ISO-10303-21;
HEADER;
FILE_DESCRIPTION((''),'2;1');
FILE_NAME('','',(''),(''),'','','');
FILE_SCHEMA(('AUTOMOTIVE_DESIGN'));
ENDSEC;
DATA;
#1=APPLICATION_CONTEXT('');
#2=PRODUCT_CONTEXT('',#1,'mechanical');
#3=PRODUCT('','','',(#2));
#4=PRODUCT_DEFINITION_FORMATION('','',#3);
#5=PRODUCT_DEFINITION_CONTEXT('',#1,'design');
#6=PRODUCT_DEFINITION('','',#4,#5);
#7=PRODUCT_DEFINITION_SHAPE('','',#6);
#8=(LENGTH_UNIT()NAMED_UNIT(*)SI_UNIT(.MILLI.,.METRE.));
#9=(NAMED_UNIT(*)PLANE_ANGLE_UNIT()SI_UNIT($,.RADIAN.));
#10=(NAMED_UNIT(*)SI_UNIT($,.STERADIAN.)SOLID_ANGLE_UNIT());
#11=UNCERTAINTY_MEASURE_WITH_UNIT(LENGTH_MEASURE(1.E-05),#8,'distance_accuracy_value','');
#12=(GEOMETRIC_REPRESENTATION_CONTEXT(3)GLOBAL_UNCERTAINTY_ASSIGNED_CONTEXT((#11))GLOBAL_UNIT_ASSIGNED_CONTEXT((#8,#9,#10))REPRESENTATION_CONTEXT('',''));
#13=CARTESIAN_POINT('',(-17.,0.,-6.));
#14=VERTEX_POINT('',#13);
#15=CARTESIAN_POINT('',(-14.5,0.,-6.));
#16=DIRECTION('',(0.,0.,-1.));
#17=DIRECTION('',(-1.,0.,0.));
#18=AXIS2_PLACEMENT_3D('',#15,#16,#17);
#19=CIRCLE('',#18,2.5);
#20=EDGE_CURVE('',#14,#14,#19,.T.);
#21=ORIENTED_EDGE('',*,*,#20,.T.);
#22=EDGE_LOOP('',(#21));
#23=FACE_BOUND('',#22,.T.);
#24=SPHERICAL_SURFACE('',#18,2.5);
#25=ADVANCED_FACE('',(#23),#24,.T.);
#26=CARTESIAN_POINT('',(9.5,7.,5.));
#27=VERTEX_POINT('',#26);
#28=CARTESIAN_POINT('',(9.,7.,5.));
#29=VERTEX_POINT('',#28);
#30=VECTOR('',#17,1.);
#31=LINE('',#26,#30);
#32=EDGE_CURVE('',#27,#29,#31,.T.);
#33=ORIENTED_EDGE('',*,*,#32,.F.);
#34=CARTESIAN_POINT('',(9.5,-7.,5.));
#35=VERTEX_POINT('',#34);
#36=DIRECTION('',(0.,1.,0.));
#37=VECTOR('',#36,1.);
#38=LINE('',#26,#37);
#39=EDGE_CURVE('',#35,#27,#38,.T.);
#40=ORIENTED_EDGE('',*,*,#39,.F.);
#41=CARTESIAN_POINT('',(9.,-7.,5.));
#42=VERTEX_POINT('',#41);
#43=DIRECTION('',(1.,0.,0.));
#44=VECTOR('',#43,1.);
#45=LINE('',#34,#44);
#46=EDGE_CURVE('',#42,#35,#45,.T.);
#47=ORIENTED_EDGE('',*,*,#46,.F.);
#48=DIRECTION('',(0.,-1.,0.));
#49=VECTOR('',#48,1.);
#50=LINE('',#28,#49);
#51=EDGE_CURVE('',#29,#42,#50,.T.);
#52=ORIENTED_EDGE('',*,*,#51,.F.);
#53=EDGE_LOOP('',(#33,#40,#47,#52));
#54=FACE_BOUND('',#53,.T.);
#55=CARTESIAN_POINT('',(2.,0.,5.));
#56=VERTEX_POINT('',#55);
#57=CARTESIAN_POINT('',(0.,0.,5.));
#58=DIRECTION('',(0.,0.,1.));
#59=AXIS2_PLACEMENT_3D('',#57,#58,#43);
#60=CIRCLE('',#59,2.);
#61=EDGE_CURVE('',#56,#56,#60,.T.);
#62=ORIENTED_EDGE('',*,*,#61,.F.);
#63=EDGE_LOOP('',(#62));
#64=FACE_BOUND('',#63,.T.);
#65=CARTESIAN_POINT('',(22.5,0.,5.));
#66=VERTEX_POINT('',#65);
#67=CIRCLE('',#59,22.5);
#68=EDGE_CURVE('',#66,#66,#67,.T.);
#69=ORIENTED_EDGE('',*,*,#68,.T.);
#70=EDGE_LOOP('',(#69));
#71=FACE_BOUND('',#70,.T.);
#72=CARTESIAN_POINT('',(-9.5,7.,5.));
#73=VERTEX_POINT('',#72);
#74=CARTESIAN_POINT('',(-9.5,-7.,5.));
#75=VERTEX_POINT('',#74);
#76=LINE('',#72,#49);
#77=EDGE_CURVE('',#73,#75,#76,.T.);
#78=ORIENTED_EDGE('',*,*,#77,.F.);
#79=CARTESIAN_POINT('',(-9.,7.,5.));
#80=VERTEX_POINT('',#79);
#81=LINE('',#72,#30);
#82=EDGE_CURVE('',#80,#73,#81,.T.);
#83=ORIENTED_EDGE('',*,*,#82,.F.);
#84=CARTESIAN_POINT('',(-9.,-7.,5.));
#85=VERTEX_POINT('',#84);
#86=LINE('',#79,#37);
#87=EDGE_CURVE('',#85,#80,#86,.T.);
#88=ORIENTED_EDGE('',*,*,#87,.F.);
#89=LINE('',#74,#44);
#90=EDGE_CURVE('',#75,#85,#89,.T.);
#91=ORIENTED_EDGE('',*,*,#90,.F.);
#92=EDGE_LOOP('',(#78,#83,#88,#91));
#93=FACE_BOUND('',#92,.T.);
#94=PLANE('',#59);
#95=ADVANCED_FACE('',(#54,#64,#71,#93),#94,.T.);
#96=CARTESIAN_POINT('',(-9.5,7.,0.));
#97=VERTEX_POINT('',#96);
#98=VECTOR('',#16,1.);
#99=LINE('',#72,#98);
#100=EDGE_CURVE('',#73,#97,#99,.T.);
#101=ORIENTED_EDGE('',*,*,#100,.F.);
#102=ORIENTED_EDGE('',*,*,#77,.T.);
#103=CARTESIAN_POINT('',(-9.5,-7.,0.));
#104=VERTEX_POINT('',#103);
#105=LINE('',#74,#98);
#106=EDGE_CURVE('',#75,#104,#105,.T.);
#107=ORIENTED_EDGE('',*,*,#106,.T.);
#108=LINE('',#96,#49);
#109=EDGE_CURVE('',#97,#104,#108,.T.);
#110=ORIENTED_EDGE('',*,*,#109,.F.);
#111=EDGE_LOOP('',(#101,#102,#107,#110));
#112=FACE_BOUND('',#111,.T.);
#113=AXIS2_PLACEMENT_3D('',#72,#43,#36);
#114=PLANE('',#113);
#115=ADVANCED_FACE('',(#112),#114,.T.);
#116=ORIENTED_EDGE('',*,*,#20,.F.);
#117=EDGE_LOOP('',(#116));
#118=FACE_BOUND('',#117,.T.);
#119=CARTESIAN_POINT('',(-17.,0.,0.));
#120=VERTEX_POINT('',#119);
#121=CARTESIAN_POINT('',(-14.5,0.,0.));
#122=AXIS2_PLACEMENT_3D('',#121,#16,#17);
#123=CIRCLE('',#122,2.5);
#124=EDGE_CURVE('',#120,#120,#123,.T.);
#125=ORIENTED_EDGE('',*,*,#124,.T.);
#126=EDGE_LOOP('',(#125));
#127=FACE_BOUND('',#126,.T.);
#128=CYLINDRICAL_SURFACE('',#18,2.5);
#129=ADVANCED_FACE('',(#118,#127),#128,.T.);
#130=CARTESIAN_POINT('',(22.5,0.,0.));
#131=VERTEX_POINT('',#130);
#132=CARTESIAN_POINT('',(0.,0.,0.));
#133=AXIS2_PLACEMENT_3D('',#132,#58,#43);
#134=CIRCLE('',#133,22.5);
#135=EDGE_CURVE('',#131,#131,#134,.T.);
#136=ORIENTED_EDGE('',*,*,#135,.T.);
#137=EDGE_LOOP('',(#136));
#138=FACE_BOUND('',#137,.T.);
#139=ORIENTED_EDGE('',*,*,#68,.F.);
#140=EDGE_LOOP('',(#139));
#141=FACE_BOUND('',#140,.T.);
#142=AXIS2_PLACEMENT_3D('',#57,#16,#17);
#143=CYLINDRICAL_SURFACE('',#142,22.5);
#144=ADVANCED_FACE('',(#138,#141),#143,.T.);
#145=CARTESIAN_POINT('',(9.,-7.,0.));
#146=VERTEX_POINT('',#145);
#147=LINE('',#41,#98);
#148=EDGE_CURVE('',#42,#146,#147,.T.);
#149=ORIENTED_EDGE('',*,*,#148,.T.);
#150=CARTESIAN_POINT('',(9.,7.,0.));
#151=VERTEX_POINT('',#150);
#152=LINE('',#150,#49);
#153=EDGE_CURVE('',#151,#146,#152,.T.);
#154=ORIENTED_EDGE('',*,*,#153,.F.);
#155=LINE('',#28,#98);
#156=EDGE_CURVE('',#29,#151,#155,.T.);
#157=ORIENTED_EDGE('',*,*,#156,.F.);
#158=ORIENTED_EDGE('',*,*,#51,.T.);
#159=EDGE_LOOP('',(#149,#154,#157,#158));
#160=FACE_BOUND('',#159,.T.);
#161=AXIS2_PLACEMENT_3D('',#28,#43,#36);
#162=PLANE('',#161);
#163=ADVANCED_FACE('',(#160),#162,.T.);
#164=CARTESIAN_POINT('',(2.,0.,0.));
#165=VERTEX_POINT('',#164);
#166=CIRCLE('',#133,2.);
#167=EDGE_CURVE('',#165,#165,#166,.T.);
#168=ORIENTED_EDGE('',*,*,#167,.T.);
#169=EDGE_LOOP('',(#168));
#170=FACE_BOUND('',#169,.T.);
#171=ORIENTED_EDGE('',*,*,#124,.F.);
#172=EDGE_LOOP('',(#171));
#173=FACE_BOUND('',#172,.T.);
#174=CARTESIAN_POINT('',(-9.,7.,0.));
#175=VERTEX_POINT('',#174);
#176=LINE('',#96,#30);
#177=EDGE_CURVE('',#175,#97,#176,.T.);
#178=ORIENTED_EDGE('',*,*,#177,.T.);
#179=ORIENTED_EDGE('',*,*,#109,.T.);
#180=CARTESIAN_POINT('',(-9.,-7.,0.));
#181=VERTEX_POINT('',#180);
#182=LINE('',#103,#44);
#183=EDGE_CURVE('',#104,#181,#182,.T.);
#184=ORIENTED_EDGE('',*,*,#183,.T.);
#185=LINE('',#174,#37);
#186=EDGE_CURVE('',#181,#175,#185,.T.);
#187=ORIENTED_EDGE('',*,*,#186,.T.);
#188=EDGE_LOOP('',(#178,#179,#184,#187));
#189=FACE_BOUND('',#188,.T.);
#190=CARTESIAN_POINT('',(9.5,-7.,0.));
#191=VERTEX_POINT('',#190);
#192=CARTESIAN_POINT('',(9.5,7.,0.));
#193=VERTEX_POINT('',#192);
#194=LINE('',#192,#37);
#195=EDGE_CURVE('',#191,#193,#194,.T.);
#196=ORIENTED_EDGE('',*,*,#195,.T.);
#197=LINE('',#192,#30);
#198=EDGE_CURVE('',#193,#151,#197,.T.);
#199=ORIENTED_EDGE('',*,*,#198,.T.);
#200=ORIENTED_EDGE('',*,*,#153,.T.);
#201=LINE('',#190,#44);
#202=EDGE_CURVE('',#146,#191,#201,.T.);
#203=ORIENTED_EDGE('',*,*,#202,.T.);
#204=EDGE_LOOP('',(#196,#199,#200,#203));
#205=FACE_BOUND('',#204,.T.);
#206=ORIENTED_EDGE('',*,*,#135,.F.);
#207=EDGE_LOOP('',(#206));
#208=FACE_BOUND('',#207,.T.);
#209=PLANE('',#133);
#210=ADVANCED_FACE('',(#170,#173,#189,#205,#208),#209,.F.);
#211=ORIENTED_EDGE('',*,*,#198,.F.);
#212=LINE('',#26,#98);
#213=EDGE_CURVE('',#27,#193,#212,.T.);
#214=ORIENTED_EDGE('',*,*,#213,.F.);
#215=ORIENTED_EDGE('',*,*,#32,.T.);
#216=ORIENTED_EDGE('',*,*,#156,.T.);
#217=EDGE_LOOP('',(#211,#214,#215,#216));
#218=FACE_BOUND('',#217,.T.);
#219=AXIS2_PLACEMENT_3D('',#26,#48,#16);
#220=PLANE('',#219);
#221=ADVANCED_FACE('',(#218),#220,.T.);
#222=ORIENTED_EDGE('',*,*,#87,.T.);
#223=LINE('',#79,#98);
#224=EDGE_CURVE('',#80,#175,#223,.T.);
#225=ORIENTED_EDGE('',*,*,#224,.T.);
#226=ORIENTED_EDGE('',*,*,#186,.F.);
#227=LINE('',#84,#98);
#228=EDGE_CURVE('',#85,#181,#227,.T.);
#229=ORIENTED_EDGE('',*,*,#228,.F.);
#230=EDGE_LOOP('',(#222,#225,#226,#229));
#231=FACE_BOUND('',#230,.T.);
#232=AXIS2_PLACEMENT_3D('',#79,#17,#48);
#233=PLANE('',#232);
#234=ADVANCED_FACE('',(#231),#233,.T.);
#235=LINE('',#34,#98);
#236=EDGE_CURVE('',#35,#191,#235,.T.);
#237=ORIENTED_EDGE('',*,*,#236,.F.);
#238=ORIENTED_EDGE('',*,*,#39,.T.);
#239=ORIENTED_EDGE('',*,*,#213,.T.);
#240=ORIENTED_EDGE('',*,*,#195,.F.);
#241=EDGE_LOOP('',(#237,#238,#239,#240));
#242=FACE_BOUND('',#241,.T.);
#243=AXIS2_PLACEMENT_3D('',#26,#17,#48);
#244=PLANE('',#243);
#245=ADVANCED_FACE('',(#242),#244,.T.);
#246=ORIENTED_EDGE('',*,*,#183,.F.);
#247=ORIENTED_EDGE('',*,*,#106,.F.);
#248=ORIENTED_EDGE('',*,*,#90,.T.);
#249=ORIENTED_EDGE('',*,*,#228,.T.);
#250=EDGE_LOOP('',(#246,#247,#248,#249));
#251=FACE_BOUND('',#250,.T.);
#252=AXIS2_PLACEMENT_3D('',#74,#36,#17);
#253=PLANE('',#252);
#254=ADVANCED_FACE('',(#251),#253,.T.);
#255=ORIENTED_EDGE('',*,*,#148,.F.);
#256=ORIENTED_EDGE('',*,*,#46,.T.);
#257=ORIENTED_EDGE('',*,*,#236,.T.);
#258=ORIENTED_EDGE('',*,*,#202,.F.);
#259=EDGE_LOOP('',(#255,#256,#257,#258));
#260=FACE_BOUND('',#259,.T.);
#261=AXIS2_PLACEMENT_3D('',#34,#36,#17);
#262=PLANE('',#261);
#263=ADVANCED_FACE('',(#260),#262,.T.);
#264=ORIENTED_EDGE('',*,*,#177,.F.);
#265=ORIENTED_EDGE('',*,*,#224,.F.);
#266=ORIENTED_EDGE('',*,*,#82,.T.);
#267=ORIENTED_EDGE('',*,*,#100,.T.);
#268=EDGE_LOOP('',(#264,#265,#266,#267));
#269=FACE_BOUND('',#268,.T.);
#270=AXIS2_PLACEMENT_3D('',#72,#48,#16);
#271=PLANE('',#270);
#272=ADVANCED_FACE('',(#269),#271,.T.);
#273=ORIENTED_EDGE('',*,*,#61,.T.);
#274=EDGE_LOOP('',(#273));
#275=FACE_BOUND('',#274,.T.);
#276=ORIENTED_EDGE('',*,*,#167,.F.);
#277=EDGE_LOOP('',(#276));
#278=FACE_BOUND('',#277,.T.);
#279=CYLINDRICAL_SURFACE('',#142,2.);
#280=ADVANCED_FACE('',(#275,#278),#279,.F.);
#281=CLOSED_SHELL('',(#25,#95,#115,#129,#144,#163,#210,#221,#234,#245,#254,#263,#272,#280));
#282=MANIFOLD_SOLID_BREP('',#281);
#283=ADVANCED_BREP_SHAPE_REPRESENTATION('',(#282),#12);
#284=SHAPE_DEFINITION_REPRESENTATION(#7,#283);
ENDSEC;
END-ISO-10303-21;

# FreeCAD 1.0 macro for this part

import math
import FreeCAD as App
import Part
import Sketcher
Q = App.Units.Quantity


def add_polygon(sketch, points):
    """Adds a closed chain of lines whose ends are joined by coincident constraints."""
    first, n = sketch.GeometryCount, len(points)
    for a, b in zip(points, points[1:] + points[:1]):
        sketch.addGeometry(Part.LineSegment(App.Vector(*a, 0), App.Vector(*b, 0)), False)
    for i in range(n):
        sketch.addConstraint(Sketcher.Constraint("Coincident", first + i, 2, first + (i + 1) % n, 1))

doc = App.newDocument("Part")
body = doc.addObject("PartDesign::Body", "Body")

# Sketch on XY plane
sketch1 = doc.addObject("Sketcher::SketchObject", "Sketch")
body.addObject(sketch1)
sketch1.AttachmentSupport = (doc.XY_Plane, [""])
sketch1.MapMode = "FlatFace"
sketch1.addGeometry(Part.Circle(App.Vector(0, 0, 0), App.Vector(0, 0, 1), 22.5), False)  # 0
add_polygon(sketch1, [(-9, -7), (-9.5, -7), (-9.5, 7), (-9, 7)])  # lines 1-4
sketch1.addGeometry(Part.Circle(App.Vector(0, 0, 0), App.Vector(0, 0, 1), 2), False)  # 5
add_polygon(sketch1, [(9.5, -7), (9, -7), (9, 7), (9.5, 7)])  # lines 6-9
sketch1.addConstraint(Sketcher.Constraint("Horizontal", 1))
sketch1.addConstraint(Sketcher.Constraint("Vertical", 2))
sketch1.addConstraint(Sketcher.Constraint("Horizontal", 3))
sketch1.addConstraint(Sketcher.Constraint("Vertical", 4))
sketch1.addConstraint(Sketcher.Constraint("Horizontal", 6))
sketch1.addConstraint(Sketcher.Constraint("Vertical", 7))
sketch1.addConstraint(Sketcher.Constraint("Horizontal", 8))
sketch1.addConstraint(Sketcher.Constraint("Vertical", 9))
sketch1.addConstraint(Sketcher.Constraint("Coincident", 0, 3, -1, 1))
sketch1.addConstraint(Sketcher.Constraint("Coincident", 5, 3, -1, 1))
sketch1.addConstraint(Sketcher.Constraint("Symmetric", 3, 2, 6, 2, -1, 1))
sketch1.addConstraint(Sketcher.Constraint("Symmetric", 1, 2, 8, 2, -1, 1))
sketch1.addConstraint(Sketcher.Constraint("Horizontal", 4, 2, 6, 2))
sketch1.addConstraint(Sketcher.Constraint("Diameter", 0, Q("45 mm")))
sketch1.addConstraint(Sketcher.Constraint("Diameter", 5, Q("4 mm")))
sketch1.addConstraint(Sketcher.Constraint("DistanceY", 2, 1, 2, 2, Q("14 mm")))
sketch1.addConstraint(Sketcher.Constraint("DistanceX", 1, 2, 1, 1, Q("0.5 mm")))
sketch1.addConstraint(Sketcher.Constraint("DistanceX", 3, 2, -1, 1, Q("9 mm")))
pad1 = doc.addObject("PartDesign::Pad", "Pad")
body.addObject(pad1)
pad1.Profile = sketch1
pad1.Length = 5

# Sketch on XZ plane
sketch2 = doc.addObject("Sketcher::SketchObject", "Sketch001")
body.addObject(sketch2)
sketch2.AttachmentSupport = (doc.XZ_Plane, [""])
sketch2.MapMode = "FlatFace"
sketch2.addGeometry(Part.LineSegment(App.Vector(-17, -6, 0), App.Vector(-17, 0, 0)), False)
sketch2.addGeometry(Part.LineSegment(App.Vector(-17, 0, 0), App.Vector(-14.5, 0, 0)), False)
sketch2.addGeometry(Part.LineSegment(App.Vector(-14.5, 0, 0), App.Vector(-14.5, -8.5, 0)), False)
sketch2.addGeometry(Part.ArcOfCircle(Part.Circle(App.Vector(-14.5, -6, 0), App.Vector(0, 0, 1), 2.5), math.radians(180), math.radians(270)), False)
sketch2.addGeometry(Part.LineSegment(App.Vector(-14.5, -8.5, 0), App.Vector(-14.5, 0, 0)), True)  # axis
sketch2.addConstraint(Sketcher.Constraint("Coincident", 0, 2, 1, 1))
sketch2.addConstraint(Sketcher.Constraint("Coincident", 1, 2, 2, 1))
sketch2.addConstraint(Sketcher.Constraint("Coincident", 2, 2, 3, 2))
sketch2.addConstraint(Sketcher.Constraint("Tangent", 3, 1, 0, 1))
sketch2.addConstraint(Sketcher.Constraint("Vertical", 0))
sketch2.addConstraint(Sketcher.Constraint("Horizontal", 1))
sketch2.addConstraint(Sketcher.Constraint("Vertical", 2))
sketch2.addConstraint(Sketcher.Constraint("Vertical", 4))
sketch2.addConstraint(Sketcher.Constraint("Coincident", 4, 1, 2, 2))
sketch2.addConstraint(Sketcher.Constraint("PointOnObject", 0, 2, -1))
sketch2.addConstraint(Sketcher.Constraint("PointOnObject", 4, 2, -1))
sketch2.addConstraint(Sketcher.Constraint("Vertical", 3, 3, 1, 2))
sketch2.addConstraint(Sketcher.Constraint("Radius", 3, Q("2.5 mm")))
sketch2.addConstraint(Sketcher.Constraint("DistanceY", 0, 1, 0, 2, Q("6 mm")))
sketch2.addConstraint(Sketcher.Constraint("DistanceX", 0, 2, -1, 1, Q("17 mm")))
revolution = doc.addObject("PartDesign::Revolution", "Revolution")
body.addObject(revolution)
revolution.Profile = sketch2
revolution.ReferenceAxis = (sketch2, ["Axis0"])
revolution.Angle = 360

doc.recompute()
